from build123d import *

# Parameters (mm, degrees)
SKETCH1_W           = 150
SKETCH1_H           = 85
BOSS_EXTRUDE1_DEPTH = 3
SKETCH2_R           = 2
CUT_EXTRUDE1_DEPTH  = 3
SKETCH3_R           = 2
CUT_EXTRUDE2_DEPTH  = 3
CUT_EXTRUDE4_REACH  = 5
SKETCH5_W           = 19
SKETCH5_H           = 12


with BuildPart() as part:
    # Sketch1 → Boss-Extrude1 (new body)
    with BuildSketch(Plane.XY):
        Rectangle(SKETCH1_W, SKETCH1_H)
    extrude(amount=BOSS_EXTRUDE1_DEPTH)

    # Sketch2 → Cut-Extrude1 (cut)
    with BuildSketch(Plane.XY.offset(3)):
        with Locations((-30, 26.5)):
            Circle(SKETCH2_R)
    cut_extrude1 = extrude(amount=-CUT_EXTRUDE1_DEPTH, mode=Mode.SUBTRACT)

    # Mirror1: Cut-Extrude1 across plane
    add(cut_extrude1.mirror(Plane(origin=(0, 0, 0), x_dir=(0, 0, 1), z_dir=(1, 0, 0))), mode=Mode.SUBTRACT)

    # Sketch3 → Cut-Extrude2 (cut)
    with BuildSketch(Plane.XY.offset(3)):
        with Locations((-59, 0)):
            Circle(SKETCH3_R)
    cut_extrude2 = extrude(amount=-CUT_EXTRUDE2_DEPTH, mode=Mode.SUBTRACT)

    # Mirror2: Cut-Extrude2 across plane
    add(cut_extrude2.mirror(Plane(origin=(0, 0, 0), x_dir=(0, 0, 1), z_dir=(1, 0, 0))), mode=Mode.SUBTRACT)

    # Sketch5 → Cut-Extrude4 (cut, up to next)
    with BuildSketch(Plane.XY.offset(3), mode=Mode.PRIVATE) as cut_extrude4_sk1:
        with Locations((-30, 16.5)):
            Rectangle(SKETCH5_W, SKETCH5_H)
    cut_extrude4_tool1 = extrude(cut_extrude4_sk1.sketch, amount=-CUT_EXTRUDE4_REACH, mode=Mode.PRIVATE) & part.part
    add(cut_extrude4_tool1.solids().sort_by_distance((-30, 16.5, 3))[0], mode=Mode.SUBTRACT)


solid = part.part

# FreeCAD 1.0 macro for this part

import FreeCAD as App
import Part
import Sketcher


def add_polygon(sketch, points):
    """Adds a closed chain of lines whose ends are joined by coincident constraints."""
    first, n = sketch.GeometryCount, len(points)
    for a, b in zip(points, points[1:] + points[:1]):
        sketch.addGeometry(Part.LineSegment(App.Vector(*a, 0), App.Vector(*b, 0)), False)
    for i in range(n):
        sketch.addConstraint(Sketcher.Constraint("Coincident", first + i, 2, first + (i + 1) % n, 1))

doc = App.newDocument("Part")
body = doc.addObject("PartDesign::Body", "Body")

# Sketch on XY plane
sketch1 = doc.addObject("Sketcher::SketchObject", "Sketch")
body.addObject(sketch1)
sketch1.AttachmentSupport = (doc.XY_Plane, [""])
sketch1.MapMode = "FlatFace"
add_polygon(sketch1, [(-75, 42), (-75, -42), (75, -42), (75, 42)])  # lines 0-3
sketch1.addConstraint(Sketcher.Constraint("Vertical", 0))
sketch1.addConstraint(Sketcher.Constraint("Horizontal", 1))
sketch1.addConstraint(Sketcher.Constraint("Vertical", 2))
sketch1.addConstraint(Sketcher.Constraint("Horizontal", 3))
sketch1.addConstraint(Sketcher.Constraint("Symmetric", 0, 2, 2, 2, -1, 1))
sketch1.addConstraint(Sketcher.Constraint("DistanceX", 1, 1, 1, 2, 150.0))
sketch1.addConstraint(Sketcher.Constraint("DistanceY", 0, 2, 0, 1, 85.0))
pad1 = doc.addObject("PartDesign::Pad", "Pad")
body.addObject(pad1)
pad1.Profile = sketch1
pad1.Length = 3

# Sketch on XY plane
sketch2 = doc.addObject("Sketcher::SketchObject", "Sketch001")
body.addObject(sketch2)
sketch2.AttachmentSupport = (doc.XY_Plane, [""])
sketch2.MapMode = "FlatFace"
sketch2.AttachmentOffset = App.Placement(App.Vector(0, 0, 3), App.Rotation())
sketch2.addGeometry(Part.Circle(App.Vector(-30, 26.5, 0), App.Vector(0, 0, 1), 2), False)
sketch2.addConstraint(Sketcher.Constraint("Diameter", 0, 4.0))
sketch2.addConstraint(Sketcher.Constraint("DistanceX", 0, 3, -1, 1, 30.0))
sketch2.addConstraint(Sketcher.Constraint("DistanceY", -1, 1, 0, 3, 26.5))
pocket1 = doc.addObject("PartDesign::Pocket", "Pocket")
body.addObject(pocket1)
pocket1.Profile = sketch2
pocket1.Length = 3
doc.recompute()

mirrored = doc.addObject("PartDesign::Mirrored", "Mirrored")
body.addObject(mirrored)
mirrored.Originals = [pocket1]
mirrored.MirrorPlane = (doc.YZ_Plane, [""])
body.Tip = mirrored

# Sketch on XY plane
sketch3 = doc.addObject("Sketcher::SketchObject", "Sketch002")
body.addObject(sketch3)
sketch3.AttachmentSupport = (doc.XY_Plane, [""])
sketch3.MapMode = "FlatFace"
sketch3.AttachmentOffset = App.Placement(App.Vector(0, 0, 3), App.Rotation())
sketch3.addGeometry(Part.Circle(App.Vector(-59, 0, 0), App.Vector(0, 0, 1), 2), False)
sketch3.addConstraint(Sketcher.Constraint("PointOnObject", 0, 3, -1))
sketch3.addConstraint(Sketcher.Constraint("Diameter", 0, 4.0))
sketch3.addConstraint(Sketcher.Constraint("DistanceX", 0, 3, -1, 1, 59.0))
pocket2 = doc.addObject("PartDesign::Pocket", "Pocket001")
body.addObject(pocket2)
pocket2.Profile = sketch3
pocket2.Length = 3
doc.recompute()

mirrored2 = doc.addObject("PartDesign::Mirrored", "Mirrored001")
body.addObject(mirrored2)
mirrored2.Originals = [pocket2]
mirrored2.MirrorPlane = (doc.YZ_Plane, [""])
body.Tip = mirrored2

# Sketch on XY plane
sketch4 = doc.addObject("Sketcher::SketchObject", "Sketch003")
body.addObject(sketch4)
sketch4.AttachmentSupport = (doc.XY_Plane, [""])
sketch4.MapMode = "FlatFace"
sketch4.AttachmentOffset = App.Placement(App.Vector(0, 0, 3), App.Rotation())
add_polygon(sketch4, [(-40, 22), (-40, 10), (-20, 10), (-20, 22)])  # lines 0-3
sketch4.addConstraint(Sketcher.Constraint("Vertical", 0))
sketch4.addConstraint(Sketcher.Constraint("Horizontal", 1))
sketch4.addConstraint(Sketcher.Constraint("Vertical", 2))
sketch4.addConstraint(Sketcher.Constraint("Horizontal", 3))
sketch4.addConstraint(Sketcher.Constraint("DistanceX", 1, 1, 1, 2, 19.0))
sketch4.addConstraint(Sketcher.Constraint("DistanceY", 0, 2, 0, 1, 12.0))
sketch4.addConstraint(Sketcher.Constraint("DistanceX", 0, 2, -1, 1, 39.5))
sketch4.addConstraint(Sketcher.Constraint("DistanceY", -1, 1, 0, 2, 10.5))
pocket3 = doc.addObject("PartDesign::Pocket", "Pocket002")
body.addObject(pocket3)
pocket3.Profile = sketch4
pocket3.Type = "UpToFirst"

doc.recompute()
